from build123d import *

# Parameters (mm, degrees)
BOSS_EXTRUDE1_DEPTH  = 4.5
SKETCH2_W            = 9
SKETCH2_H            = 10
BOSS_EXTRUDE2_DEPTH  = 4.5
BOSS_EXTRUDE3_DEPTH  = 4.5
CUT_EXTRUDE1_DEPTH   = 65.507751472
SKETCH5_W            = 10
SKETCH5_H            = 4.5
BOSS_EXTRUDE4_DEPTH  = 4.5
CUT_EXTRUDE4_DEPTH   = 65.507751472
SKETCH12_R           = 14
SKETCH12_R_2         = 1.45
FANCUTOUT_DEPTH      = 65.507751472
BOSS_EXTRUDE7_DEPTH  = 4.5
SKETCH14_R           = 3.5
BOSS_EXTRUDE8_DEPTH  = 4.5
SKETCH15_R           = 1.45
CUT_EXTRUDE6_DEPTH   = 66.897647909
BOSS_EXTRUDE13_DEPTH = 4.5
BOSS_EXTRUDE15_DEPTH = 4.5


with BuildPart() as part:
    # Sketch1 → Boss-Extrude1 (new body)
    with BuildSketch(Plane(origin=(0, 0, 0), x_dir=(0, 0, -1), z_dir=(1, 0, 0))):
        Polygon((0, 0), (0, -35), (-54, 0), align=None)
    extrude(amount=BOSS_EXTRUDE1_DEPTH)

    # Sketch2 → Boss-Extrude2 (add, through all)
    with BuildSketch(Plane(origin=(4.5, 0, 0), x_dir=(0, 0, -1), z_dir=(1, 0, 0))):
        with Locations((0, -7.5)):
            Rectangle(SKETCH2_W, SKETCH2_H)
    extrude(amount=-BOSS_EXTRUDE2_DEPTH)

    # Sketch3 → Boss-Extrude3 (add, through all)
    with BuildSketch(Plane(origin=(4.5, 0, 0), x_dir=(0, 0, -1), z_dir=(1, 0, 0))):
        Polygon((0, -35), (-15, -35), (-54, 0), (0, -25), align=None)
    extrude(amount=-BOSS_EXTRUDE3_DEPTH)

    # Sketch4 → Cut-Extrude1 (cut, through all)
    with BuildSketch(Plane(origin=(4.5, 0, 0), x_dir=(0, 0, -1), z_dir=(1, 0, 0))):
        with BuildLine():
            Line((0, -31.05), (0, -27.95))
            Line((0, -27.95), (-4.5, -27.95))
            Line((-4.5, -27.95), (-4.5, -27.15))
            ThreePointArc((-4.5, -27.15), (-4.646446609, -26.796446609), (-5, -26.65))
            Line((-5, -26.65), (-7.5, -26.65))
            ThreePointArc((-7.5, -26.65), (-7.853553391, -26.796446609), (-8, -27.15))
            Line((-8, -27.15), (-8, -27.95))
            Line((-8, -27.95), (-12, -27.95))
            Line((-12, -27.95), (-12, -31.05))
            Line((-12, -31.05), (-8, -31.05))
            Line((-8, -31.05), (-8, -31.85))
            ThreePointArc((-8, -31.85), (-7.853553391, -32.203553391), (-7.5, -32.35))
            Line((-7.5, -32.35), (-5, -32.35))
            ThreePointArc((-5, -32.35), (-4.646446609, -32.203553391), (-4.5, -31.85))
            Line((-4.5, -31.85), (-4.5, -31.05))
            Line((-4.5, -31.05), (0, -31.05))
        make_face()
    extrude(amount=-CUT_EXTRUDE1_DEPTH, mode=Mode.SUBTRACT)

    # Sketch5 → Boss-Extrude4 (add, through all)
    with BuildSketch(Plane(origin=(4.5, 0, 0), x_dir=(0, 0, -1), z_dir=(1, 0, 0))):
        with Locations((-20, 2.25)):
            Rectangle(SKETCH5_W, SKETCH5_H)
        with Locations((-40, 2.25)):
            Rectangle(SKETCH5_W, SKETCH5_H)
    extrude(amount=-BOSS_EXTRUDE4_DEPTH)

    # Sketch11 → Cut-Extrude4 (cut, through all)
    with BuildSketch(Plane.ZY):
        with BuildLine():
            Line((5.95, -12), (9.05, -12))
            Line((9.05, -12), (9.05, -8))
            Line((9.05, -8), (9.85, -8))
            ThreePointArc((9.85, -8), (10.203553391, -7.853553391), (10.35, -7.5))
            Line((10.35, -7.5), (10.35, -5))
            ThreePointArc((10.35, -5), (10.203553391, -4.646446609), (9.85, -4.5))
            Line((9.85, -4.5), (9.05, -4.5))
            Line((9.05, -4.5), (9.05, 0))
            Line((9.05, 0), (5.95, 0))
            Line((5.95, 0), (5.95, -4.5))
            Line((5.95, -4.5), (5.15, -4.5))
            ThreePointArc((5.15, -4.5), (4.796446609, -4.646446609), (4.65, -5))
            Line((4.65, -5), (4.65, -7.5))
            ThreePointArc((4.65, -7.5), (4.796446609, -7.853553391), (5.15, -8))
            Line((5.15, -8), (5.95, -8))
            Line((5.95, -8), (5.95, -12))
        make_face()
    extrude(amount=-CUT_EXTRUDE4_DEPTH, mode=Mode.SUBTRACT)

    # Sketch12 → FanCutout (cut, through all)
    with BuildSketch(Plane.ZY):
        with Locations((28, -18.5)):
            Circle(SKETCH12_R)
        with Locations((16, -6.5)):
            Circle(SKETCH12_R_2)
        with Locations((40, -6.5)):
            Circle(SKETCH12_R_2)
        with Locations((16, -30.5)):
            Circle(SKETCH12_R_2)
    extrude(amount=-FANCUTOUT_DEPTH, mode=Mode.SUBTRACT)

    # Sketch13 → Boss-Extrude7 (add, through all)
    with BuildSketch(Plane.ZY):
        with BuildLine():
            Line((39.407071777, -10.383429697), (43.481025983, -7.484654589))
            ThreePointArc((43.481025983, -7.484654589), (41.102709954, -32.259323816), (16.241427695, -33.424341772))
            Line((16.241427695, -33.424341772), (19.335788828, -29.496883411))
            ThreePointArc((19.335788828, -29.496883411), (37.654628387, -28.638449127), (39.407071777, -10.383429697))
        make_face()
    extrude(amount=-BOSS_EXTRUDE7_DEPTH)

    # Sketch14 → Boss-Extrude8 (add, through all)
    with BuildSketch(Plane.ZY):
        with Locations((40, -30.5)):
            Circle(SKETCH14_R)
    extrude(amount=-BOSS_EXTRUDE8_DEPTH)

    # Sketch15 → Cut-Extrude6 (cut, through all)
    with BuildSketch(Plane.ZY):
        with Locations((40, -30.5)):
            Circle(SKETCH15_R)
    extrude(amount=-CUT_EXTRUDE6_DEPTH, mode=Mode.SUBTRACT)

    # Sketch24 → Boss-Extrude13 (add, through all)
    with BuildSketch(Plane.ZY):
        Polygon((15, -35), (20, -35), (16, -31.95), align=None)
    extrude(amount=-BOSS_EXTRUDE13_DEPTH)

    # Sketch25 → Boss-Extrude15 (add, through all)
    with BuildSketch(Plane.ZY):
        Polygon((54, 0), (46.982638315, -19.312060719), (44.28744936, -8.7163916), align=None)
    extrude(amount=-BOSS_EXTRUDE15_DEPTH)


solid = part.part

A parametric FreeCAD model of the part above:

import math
import FreeCAD as App
import Part
import Sketcher

doc = App.newDocument("Part")
body = doc.addObject("PartDesign::Body", "Body")

sketch1 = body.newObject("Sketcher::SketchObject", "Sketch")
sketch1.AttachmentSupport = (doc.getObject("YZ_Plane"), [""])
sketch1.MapMode = "FlatFace"
sketch1.addGeometry([
    Part.LineSegment(App.Vector(-35, 0, 0), App.Vector(0, 0, 0)),
    Part.LineSegment(App.Vector(0, 0, 0), App.Vector(0, 54, 0)),
    Part.LineSegment(App.Vector(0, 54, 0), App.Vector(-35, 0, 0)),
], False)
sketch1.addConstraint([
    Sketcher.Constraint("Coincident", 0, 2, 1, 1),
    Sketcher.Constraint("Coincident", 1, 2, 2, 1),
    Sketcher.Constraint("Coincident", 2, 2, 0, 1),
    Sketcher.Constraint("Horizontal", 0),
    Sketcher.Constraint("Vertical", 1),
    Sketcher.Constraint("Coincident", 0, 2, -1, 1),
    Sketcher.Constraint("DistanceX", 0, 1, 0, 2, 35.0),
    Sketcher.Constraint("DistanceY", 1, 1, 1, 2, 54.0),
])
pad1 = body.newObject("PartDesign::Pad", "Pad")
pad1.Profile = sketch1
pad1.Length = 4.5

sketch2 = body.newObject("Sketcher::SketchObject", "Sketch001")
sketch2.AttachmentSupport = (doc.getObject("YZ_Plane"), [""])
sketch2.MapMode = "FlatFace"
sketch2.AttachmentOffset = App.Placement(App.Vector(0, 0, 4.5), App.Rotation())
sketch2.addGeometry([
    Part.LineSegment(App.Vector(-2.5, 4.5, 0), App.Vector(-12.5, 4.5, 0)),
    Part.LineSegment(App.Vector(-12.5, 4.5, 0), App.Vector(-12.5, -4.5, 0)),
    Part.LineSegment(App.Vector(-12.5, -4.5, 0), App.Vector(-2.5, -4.5, 0)),
    Part.LineSegment(App.Vector(-2.5, -4.5, 0), App.Vector(-2.5, 4.5, 0)),
], False)
sketch2.addConstraint([
    Sketcher.Constraint("Coincident", 0, 2, 1, 1),
    Sketcher.Constraint("Coincident", 1, 2, 2, 1),
    Sketcher.Constraint("Coincident", 2, 2, 3, 1),
    Sketcher.Constraint("Coincident", 3, 2, 0, 1),
    Sketcher.Constraint("Horizontal", 0),
    Sketcher.Constraint("Vertical", 1),
    Sketcher.Constraint("Horizontal", 2),
    Sketcher.Constraint("Vertical", 3),
    Sketcher.Constraint("DistanceX", 0, 2, 0, 1, 10.0),
    Sketcher.Constraint("DistanceY", 1, 2, 1, 1, 9.0),
    Sketcher.Constraint("DistanceX", 0, 2, -1, 1, 12.5),
    Sketcher.Constraint("DistanceY", -1, 1, 0, 2, 4.5),
])
pad2 = body.newObject("PartDesign::Pad", "Pad001")
pad2.Profile = sketch2
pad2.Type = "UpToLast"
pad2.Reversed = True

sketch3 = body.newObject("Sketcher::SketchObject", "Sketch002")
sketch3.AttachmentSupport = (doc.getObject("YZ_Plane"), [""])
sketch3.MapMode = "FlatFace"
sketch3.AttachmentOffset = App.Placement(App.Vector(0, 0, 4.5), App.Rotation())
sketch3.addGeometry([
    Part.LineSegment(App.Vector(-35, 15, 0), App.Vector(-35, 0, 0)),
    Part.LineSegment(App.Vector(-35, 0, 0), App.Vector(-25, 0, 0)),
    Part.LineSegment(App.Vector(-25, 0, 0), App.Vector(0, 54, 0)),
    Part.LineSegment(App.Vector(0, 54, 0), App.Vector(-35, 15, 0)),
], False)
sketch3.addConstraint([
    Sketcher.Constraint("Coincident", 0, 2, 1, 1),
    Sketcher.Constraint("Coincident", 1, 2, 2, 1),
    Sketcher.Constraint("Coincident", 2, 2, 3, 1),
    Sketcher.Constraint("Coincident", 3, 2, 0, 1),
    Sketcher.Constraint("Vertical", 0),
    Sketcher.Constraint("Horizontal", 1),
    Sketcher.Constraint("PointOnObject", 0, 2, -1),
    Sketcher.Constraint("PointOnObject", 2, 2, -2),
    Sketcher.Constraint("DistanceX", 1, 1, 1, 2, 10.0),
    Sketcher.Constraint("DistanceY", 0, 2, 0, 1, 15.0),
    Sketcher.Constraint("DistanceX", 0, 2, -1, 1, 35.0),
    Sketcher.Constraint("DistanceY", -1, 1, 2, 2, 54.0),
])
pad3 = body.newObject("PartDesign::Pad", "Pad002")
pad3.Profile = sketch3
pad3.Type = "UpToLast"
pad3.Reversed = True

sketch4 = body.newObject("Sketcher::SketchObject", "Sketch003")
sketch4.AttachmentSupport = (doc.getObject("YZ_Plane"), [""])
sketch4.MapMode = "FlatFace"
sketch4.AttachmentOffset = App.Placement(App.Vector(0, 0, 4.5), App.Rotation())
sketch4.addGeometry([
    Part.LineSegment(App.Vector(-31.05, 0, 0), App.Vector(-27.95, 0, 0)),
    Part.LineSegment(App.Vector(-27.95, 0, 0), App.Vector(-27.95, 4.5, 0)),
    Part.LineSegment(App.Vector(-27.95, 4.5, 0), App.Vector(-27.15, 4.5, 0)),
    Part.ArcOfCircle(Part.Circle(App.Vector(-27.15, 5, 0), App.Vector(0, 0, 1), 0.5), math.radians(-90), math.radians(0)),
    Part.LineSegment(App.Vector(-26.65, 5, 0), App.Vector(-26.65, 7.5, 0)),
    Part.ArcOfCircle(Part.Circle(App.Vector(-27.15, 7.5, 0), App.Vector(0, 0, 1), 0.5), math.radians(0), math.radians(90)),
    Part.LineSegment(App.Vector(-27.15, 8, 0), App.Vector(-27.95, 8, 0)),
    Part.LineSegment(App.Vector(-27.95, 8, 0), App.Vector(-27.95, 12, 0)),
    Part.LineSegment(App.Vector(-27.95, 12, 0), App.Vector(-31.05, 12, 0)),
    Part.LineSegment(App.Vector(-31.05, 12, 0), App.Vector(-31.05, 8, 0)),
    Part.LineSegment(App.Vector(-31.05, 8, 0), App.Vector(-31.85, 8, 0)),
    Part.ArcOfCircle(Part.Circle(App.Vector(-31.85, 7.5, 0), App.Vector(0, 0, 1), 0.5), math.radians(90), math.radians(180)),
    Part.LineSegment(App.Vector(-32.35, 7.5, 0), App.Vector(-32.35, 5, 0)),
    Part.ArcOfCircle(Part.Circle(App.Vector(-31.85, 5, 0), App.Vector(0, 0, 1), 0.5), math.radians(180), math.radians(270)),
    Part.LineSegment(App.Vector(-31.85, 4.5, 0), App.Vector(-31.05, 4.5, 0)),
    Part.LineSegment(App.Vector(-31.05, 4.5, 0), App.Vector(-31.05, 0, 0)),
], False)
sketch4.addConstraint([
    Sketcher.Constraint("Coincident", 0, 2, 1, 1),
    Sketcher.Constraint("Coincident", 1, 2, 2, 1),
    Sketcher.Constraint("Tangent", 2, 2, 3, 1),
    Sketcher.Constraint("Tangent", 3, 2, 4, 1),
    Sketcher.Constraint("Tangent", 4, 2, 5, 1),
    Sketcher.Constraint("Tangent", 5, 2, 6, 1),
    Sketcher.Constraint("Coincident", 6, 2, 7, 1),
    Sketcher.Constraint("Coincident", 7, 2, 8, 1),
    Sketcher.Constraint("Coincident", 8, 2, 9, 1),
    Sketcher.Constraint("Coincident", 9, 2, 10, 1),
    Sketcher.Constraint("Tangent", 10, 2, 11, 1),
    Sketcher.Constraint("Tangent", 11, 2, 12, 1),
    Sketcher.Constraint("Tangent", 12, 2, 13, 1),
    Sketcher.Constraint("Tangent", 13, 2, 14, 1),
    Sketcher.Constraint("Coincident", 14, 2, 15, 1),
    Sketcher.Constraint("Coincident", 15, 2, 0, 1),
    Sketcher.Constraint("Horizontal", 0),
    Sketcher.Constraint("Vertical", 1),
    Sketcher.Constraint("Horizontal", 2),
    Sketcher.Constraint("Vertical", 4),
    Sketcher.Constraint("Horizontal", 6),
    Sketcher.Constraint("Vertical", 7),
    Sketcher.Constraint("Horizontal", 8),
    Sketcher.Constraint("Vertical", 9),
    Sketcher.Constraint("Horizontal", 10),
    Sketcher.Constraint("Vertical", 12),
    Sketcher.Constraint("Horizontal", 14),
    Sketcher.Constraint("Vertical", 15),
    Sketcher.Constraint("Equal", 3, 5),
    Sketcher.Constraint("Equal", 5, 11),
    Sketcher.Constraint("Equal", 11, 13),
    Sketcher.Constraint("PointOnObject", 0, 2, -1),
    Sketcher.Constraint("Horizontal", 5, 3, 11, 3),
    Sketcher.Constraint("Horizontal", 3, 3, 13, 3),
    Sketcher.Constraint("Vertical", 1, 2, 6, 2),
    Sketcher.Constraint("Vertical", 9, 2, 14, 2),
    Sketcher.Constraint("Equal", 6, 10),
    Sketcher.Constraint("Radius", 3, 0.5),
    Sketcher.Constraint("DistanceY", 7, 1, 7, 2, 4.0),
    Sketcher.Constraint("DistanceX", 0, 1, 0, 2, 3.1),
    Sketcher.Constraint("DistanceX", 2, 1, 2, 2, 0.8),
    Sketcher.Constraint("DistanceY", 1, 1, 1, 2, 4.5),
    Sketcher.Constraint("DistanceY", 4, 1, 4, 2, 2.5),
    Sketcher.Constraint("DistanceX", 3, 3, -1, 1, 27.15),
])
pocket1 = body.newObject("PartDesign::Pocket", "Pocket")
pocket1.Profile = sketch4
pocket1.Type = "ThroughAll"

sketch5 = body.newObject("Sketcher::SketchObject", "Sketch004")
sketch5.AttachmentSupport = (doc.getObject("YZ_Plane"), [""])
sketch5.MapMode = "FlatFace"
sketch5.AttachmentOffset = App.Placement(App.Vector(0, 0, 4.5), App.Rotation())
sketch5.addGeometry([
    Part.LineSegment(App.Vector(4.5, 25, 0), App.Vector(0, 25, 0)),
    Part.LineSegment(App.Vector(0, 25, 0), App.Vector(0, 15, 0)),
    Part.LineSegment(App.Vector(0, 15, 0), App.Vector(4.5, 15, 0)),
    Part.LineSegment(App.Vector(4.5, 15, 0), App.Vector(4.5, 25, 0)),
    Part.LineSegment(App.Vector(4.5, 45, 0), App.Vector(0, 45, 0)),
    Part.LineSegment(App.Vector(0, 45, 0), App.Vector(0, 35, 0)),
    Part.LineSegment(App.Vector(0, 35, 0), App.Vector(4.5, 35, 0)),
    Part.LineSegment(App.Vector(4.5, 35, 0), App.Vector(4.5, 45, 0)),
], False)
sketch5.addConstraint([
    Sketcher.Constraint("Coincident", 0, 2, 1, 1),
    Sketcher.Constraint("Coincident", 1, 2, 2, 1),
    Sketcher.Constraint("Coincident", 2, 2, 3, 1),
    Sketcher.Constraint("Coincident", 3, 2, 0, 1),
    Sketcher.Constraint("Coincident", 4, 2, 5, 1),
    Sketcher.Constraint("Coincident", 5, 2, 6, 1),
    Sketcher.Constraint("Coincident", 6, 2, 7, 1),
    Sketcher.Constraint("Coincident", 7, 2, 4, 1),
    Sketcher.Constraint("Horizontal", 0),
    Sketcher.Constraint("Vertical", 1),
    Sketcher.Constraint("Horizontal", 2),
    Sketcher.Constraint("Vertical", 3),
    Sketcher.Constraint("Horizontal", 4),
    Sketcher.Constraint("Vertical", 5),
    Sketcher.Constraint("Horizontal", 6),
    Sketcher.Constraint("Vertical", 7),
    Sketcher.Constraint("PointOnObject", 0, 2, -2),
    Sketcher.Constraint("PointOnObject", 4, 2, -2),
    Sketcher.Constraint("Vertical", 3, 2, 6, 2),
    Sketcher.Constraint("Equal", 3, 5),
    Sketcher.Constraint("DistanceY", 1, 2, 1, 1, 10.0),
    Sketcher.Constraint("DistanceX", 0, 2, 0, 1, 4.5),
    Sketcher.Constraint("DistanceY", -1, 1, 0, 2, 25.0),
    Sketcher.Constraint("DistanceY", -1, 1, 4, 2, 45.0),
])
pad4 = body.newObject("PartDesign::Pad", "Pad003")
pad4.Profile = sketch5
pad4.Length = 4.5
pad4.Reversed = True

sketch6 = body.newObject("Sketcher::SketchObject", "Sketch005")
sketch6.AttachmentSupport = (doc.getObject("YZ_Plane"), [""])
sketch6.MapMode = "FlatFace"
sketch6.addGeometry([
    Part.LineSegment(App.Vector(-12, 5.95, 0), App.Vector(-12, 9.05, 0)),
    Part.LineSegment(App.Vector(-12, 9.05, 0), App.Vector(-8, 9.05, 0)),
    Part.LineSegment(App.Vector(-8, 9.05, 0), App.Vector(-8, 9.85, 0)),
    Part.ArcOfCircle(Part.Circle(App.Vector(-7.5, 9.85, 0), App.Vector(0, 0, 1), 0.5), math.radians(90), math.radians(180)),
    Part.LineSegment(App.Vector(-7.5, 10.35, 0), App.Vector(-5, 10.35, 0)),
    Part.ArcOfCircle(Part.Circle(App.Vector(-5, 9.85, 0), App.Vector(0, 0, 1), 0.5), math.radians(0), math.radians(90)),
    Part.LineSegment(App.Vector(-4.5, 9.85, 0), App.Vector(-4.5, 9.05, 0)),
    Part.LineSegment(App.Vector(-4.5, 9.05, 0), App.Vector(0, 9.05, 0)),
    Part.LineSegment(App.Vector(0, 9.05, 0), App.Vector(0, 5.95, 0)),
    Part.LineSegment(App.Vector(0, 5.95, 0), App.Vector(-4.5, 5.95, 0)),
    Part.LineSegment(App.Vector(-4.5, 5.95, 0), App.Vector(-4.5, 5.15, 0)),
    Part.ArcOfCircle(Part.Circle(App.Vector(-5, 5.15, 0), App.Vector(0, 0, 1), 0.5), math.radians(-90), math.radians(0)),
    Part.LineSegment(App.Vector(-5, 4.65, 0), App.Vector(-7.5, 4.65, 0)),
    Part.ArcOfCircle(Part.Circle(App.Vector(-7.5, 5.15, 0), App.Vector(0, 0, 1), 0.5), math.radians(180), math.radians(270)),
    Part.LineSegment(App.Vector(-8, 5.15, 0), App.Vector(-8, 5.95, 0)),
    Part.LineSegment(App.Vector(-8, 5.95, 0), App.Vector(-12, 5.95, 0)),
], False)
sketch6.addConstraint([
    Sketcher.Constraint("Coincident", 0, 2, 1, 1),
    Sketcher.Constraint("Coincident", 1, 2, 2, 1),
    Sketcher.Constraint("Tangent", 2, 2, 3, 2),
    Sketcher.Constraint("Tangent", 3, 1, 4, 1),
    Sketcher.Constraint("Tangent", 4, 2, 5, 2),
    Sketcher.Constraint("Tangent", 5, 1, 6, 1),
    Sketcher.Constraint("Coincident", 6, 2, 7, 1),
    Sketcher.Constraint("Coincident", 7, 2, 8, 1),
    Sketcher.Constraint("Coincident", 8, 2, 9, 1),
    Sketcher.Constraint("Coincident", 9, 2, 10, 1),
    Sketcher.Constraint("Tangent", 10, 2, 11, 2),
    Sketcher.Constraint("Tangent", 11, 1, 12, 1),
    Sketcher.Constraint("Tangent", 12, 2, 13, 2),
    Sketcher.Constraint("Tangent", 13, 1, 14, 1),
    Sketcher.Constraint("Coincident", 14, 2, 15, 1),
    Sketcher.Constraint("Coincident", 15, 2, 0, 1),
    Sketcher.Constraint("Vertical", 0),
    Sketcher.Constraint("Horizontal", 1),
    Sketcher.Constraint("Vertical", 2),
    Sketcher.Constraint("Horizontal", 4),
    Sketcher.Constraint("Vertical", 6),
    Sketcher.Constraint("Horizontal", 7),
    Sketcher.Constraint("Vertical", 8),
    Sketcher.Constraint("Horizontal", 9),
    Sketcher.Constraint("Vertical", 10),
    Sketcher.Constraint("Horizontal", 12),
    Sketcher.Constraint("Vertical", 14),
    Sketcher.Constraint("Horizontal", 15),
    Sketcher.Constraint("Equal", 3, 5),
    Sketcher.Constraint("Equal", 5, 11),
    Sketcher.Constraint("Equal", 11, 13),
    Sketcher.Constraint("PointOnObject", 7, 2, -2),
    Sketcher.Constraint("Horizontal", 1, 2, 6, 2),
    Sketcher.Constraint("Horizontal", 9, 2, 14, 2),
    Sketcher.Constraint("Vertical", 5, 3, 11, 3),
    Sketcher.Constraint("Vertical", 3, 3, 13, 3),
    Sketcher.Constraint("Equal", 6, 10),
    Sketcher.Constraint("Radius", 3, 0.5),
    Sketcher.Constraint("DistanceX", 1, 1, 1, 2, 4.0),
    Sketcher.Constraint("DistanceX", 4, 1, 4, 2, 2.5),
    Sketcher.Constraint("DistanceX", 7, 1, 7, 2, 4.5),
    Sketcher.Constraint("DistanceY", 0, 1, 0, 2, 3.1),
    Sketcher.Constraint("DistanceY", 2, 1, 2, 2, 0.8),
    Sketcher.Constraint("DistanceY", -1, 1, 3, 3, 9.85),
])
pocket2 = body.newObject("PartDesign::Pocket", "Pocket001")
pocket2.Profile = sketch6
pocket2.Type = "ThroughAll"
pocket2.Reversed = True

sketch7 = body.newObject("Sketcher::SketchObject", "Sketch006")
sketch7.AttachmentSupport = (doc.getObject("YZ_Plane"), [""])
sketch7.MapMode = "FlatFace"
sketch7.addGeometry([
    Part.Circle(App.Vector(-18.5, 28, 0), App.Vector(0, 0, 1), 14),
    Part.Circle(App.Vector(-6.5, 16, 0), App.Vector(0, 0, 1), 1.45),
    Part.Circle(App.Vector(-6.5, 40, 0), App.Vector(0, 0, 1), 1.45),
    Part.Circle(App.Vector(-30.5, 16, 0), App.Vector(0, 0, 1), 1.45),
], False)
sketch7.addConstraint([
    Sketcher.Constraint("Equal", 1, 2),
    Sketcher.Constraint("Equal", 2, 3),
    Sketcher.Constraint("Horizontal", 1, 3, 3, 3),
    Sketcher.Constraint("Vertical", 1, 3, 2, 3),
    Sketcher.Constraint("Diameter", 0, 28.0),
    Sketcher.Constraint("Diameter", 1, 2.9),
    Sketcher.Constraint("DistanceY", -1, 1, 0, 3, 28.0),
    Sketcher.Constraint("DistanceY", -1, 1, 1, 3, 16.0),
    Sketcher.Constraint("DistanceY", -1, 1, 2, 3, 40.0),
    Sketcher.Constraint("DistanceX", 0, 3, 1, 3, 12.0),
    Sketcher.Constraint("DistanceX", 3, 3, 0, 3, 12.0),
    Sketcher.Constraint("DistanceX", 0, 3, -1, 1, 18.5),
])
pocket3 = body.newObject("PartDesign::Pocket", "Pocket002")
pocket3.Profile = sketch7
pocket3.Type = "ThroughAll"
pocket3.Reversed = True

sketch8 = body.newObject("Sketcher::SketchObject", "Sketch007")
sketch8.AttachmentSupport = (doc.getObject("YZ_Plane"), [""])
sketch8.MapMode = "FlatFace"
sketch8.addGeometry([
    Part.LineSegment(App.Vector(-7.484655, 43.481026, 0), App.Vector(-10.38343, 39.407072, 0)),
    Part.ArcOfCircle(Part.Circle(App.Vector(-18.5, 28, 0), App.Vector(0, 0, 1), 14), math.radians(54.566686), math.radians(218.233825)),
    Part.LineSegment(App.Vector(-29.496883, 19.335789, 0), App.Vector(-33.424342, 16.241428, 0)),
    Part.ArcOfCircle(Part.Circle(App.Vector(-18.5, 28, 0), App.Vector(0, 0, 1), 19), math.radians(54.566686), math.radians(218.233825)),
], False)
sketch8.addConstraint([
    Sketcher.Constraint("Coincident", 0, 2, 1, 1),
    Sketcher.Constraint("Coincident", 1, 2, 2, 1),
    Sketcher.Constraint("Coincident", 2, 2, 3, 2),
    Sketcher.Constraint("Coincident", 3, 1, 0, 1),
    Sketcher.Constraint("Coincident", 3, 3, 1, 3),
    Sketcher.Constraint("Radius", 1, 14.0),
    Sketcher.Constraint("Radius", 3, 19.0),
    Sketcher.Constraint("DistanceY", -1, 1, 1, 3, 28.0),
    Sketcher.Constraint("DistanceX", 1, 3, -1, 1, 18.5),
    Sketcher.Constraint("DistanceY", 2, 2, 3, 1, 27.239598),
    Sketcher.Constraint("DistanceX", 0, 2, -1, 1, 10.38343),
    Sketcher.Constraint("DistanceY", -1, 1, 1, 2, 19.335789),
    Sketcher.Constraint("DistanceX", 2, 2, -1, 1, 33.424342),
])
pad5 = body.newObject("PartDesign::Pad", "Pad004")
pad5.Profile = sketch8
pad5.Length = 4.5

sketch9 = body.newObject("Sketcher::SketchObject", "Sketch008")
sketch9.AttachmentSupport = (doc.getObject("YZ_Plane"), [""])
sketch9.MapMode = "FlatFace"
sketch9.addGeometry(Part.Circle(App.Vector(-30.5, 40, 0), App.Vector(0, 0, 1), 3.5), False)
sketch9.addConstraint([
    Sketcher.Constraint("Diameter", 0, 7.0),
    Sketcher.Constraint("DistanceY", -1, 1, 0, 3, 40.0),
    Sketcher.Constraint("DistanceX", 0, 3, -1, 1, 30.5),
])
pad6 = body.newObject("PartDesign::Pad", "Pad005")
pad6.Profile = sketch9
pad6.Type = "UpToLast"

sketch10 = body.newObject("Sketcher::SketchObject", "Sketch009")
sketch10.AttachmentSupport = (doc.getObject("YZ_Plane"), [""])
sketch10.MapMode = "FlatFace"
sketch10.addGeometry(Part.Circle(App.Vector(-30.5, 40, 0), App.Vector(0, 0, 1), 1.45), False)
sketch10.addConstraint([
    Sketcher.Constraint("Diameter", 0, 2.9),
    Sketcher.Constraint("DistanceY", -1, 1, 0, 3, 40.0),
    Sketcher.Constraint("DistanceX", 0, 3, -1, 1, 30.5),
])
pocket4 = body.newObject("PartDesign::Pocket", "Pocket003")
pocket4.Profile = sketch10
pocket4.Type = "ThroughAll"
pocket4.Reversed = True

sketch11 = body.newObject("Sketcher::SketchObject", "Sketch010")
sketch11.AttachmentSupport = (doc.getObject("YZ_Plane"), [""])
sketch11.MapMode = "FlatFace"
sketch11.addGeometry([
    Part.LineSegment(App.Vector(-35, 15, 0), App.Vector(-35, 20, 0)),
    Part.LineSegment(App.Vector(-35, 20, 0), App.Vector(-31.95, 16, 0)),
    Part.LineSegment(App.Vector(-31.95, 16, 0), App.Vector(-35, 15, 0)),
], False)
sketch11.addConstraint([
    Sketcher.Constraint("Coincident", 0, 2, 1, 1),
    Sketcher.Constraint("Coincident", 1, 2, 2, 1),
    Sketcher.Constraint("Coincident", 2, 2, 0, 1),
    Sketcher.Constraint("Vertical", 0),
    Sketcher.Constraint("DistanceY", 0, 1, 0, 2, 5.0),
    Sketcher.Constraint("DistanceX", 0, 2, -1, 1, 35.0),
    Sketcher.Constraint("DistanceY", -1, 1, 0, 2, 20.0),
    Sketcher.Constraint("DistanceY", -1, 1, 1, 2, 16.0),
    Sketcher.Constraint("DistanceX", 1, 2, -1, 1, 31.95),
])
pad7 = body.newObject("PartDesign::Pad", "Pad006")
pad7.Profile = sketch11
pad7.Type = "UpToLast"

sketch12 = body.newObject("Sketcher::SketchObject", "Sketch011")
sketch12.AttachmentSupport = (doc.getObject("YZ_Plane"), [""])
sketch12.MapMode = "FlatFace"
sketch12.addGeometry([
    Part.LineSegment(App.Vector(-19.312061, 46.982638, 0), App.Vector(0, 54, 0)),
    Part.LineSegment(App.Vector(0, 54, 0), App.Vector(-8.716392, 44.287449, 0)),
    Part.LineSegment(App.Vector(-8.716392, 44.287449, 0), App.Vector(-19.312061, 46.982638, 0)),
], False)
sketch12.addConstraint([
    Sketcher.Constraint("Coincident", 0, 2, 1, 1),
    Sketcher.Constraint("Coincident", 1, 2, 2, 1),
    Sketcher.Constraint("Coincident", 2, 2, 0, 1),
    Sketcher.Constraint("PointOnObject", 0, 2, -2),
    Sketcher.Constraint("DistanceY", -1, 1, 0, 2, 54.0),
    Sketcher.Constraint("Distance", 2, 10.93308),
    Sketcher.Constraint("DistanceX", 1, 2, -1, 1, 8.716392),
    Sketcher.Constraint("DistanceY", -1, 1, 1, 2, 44.287449),
    Sketcher.Constraint("DistanceX", 2, 2, -1, 1, 19.312061),
])
pad8 = body.newObject("PartDesign::Pad", "Pad007")
pad8.Profile = sketch12
pad8.Length = 4.5

doc.recompute()
